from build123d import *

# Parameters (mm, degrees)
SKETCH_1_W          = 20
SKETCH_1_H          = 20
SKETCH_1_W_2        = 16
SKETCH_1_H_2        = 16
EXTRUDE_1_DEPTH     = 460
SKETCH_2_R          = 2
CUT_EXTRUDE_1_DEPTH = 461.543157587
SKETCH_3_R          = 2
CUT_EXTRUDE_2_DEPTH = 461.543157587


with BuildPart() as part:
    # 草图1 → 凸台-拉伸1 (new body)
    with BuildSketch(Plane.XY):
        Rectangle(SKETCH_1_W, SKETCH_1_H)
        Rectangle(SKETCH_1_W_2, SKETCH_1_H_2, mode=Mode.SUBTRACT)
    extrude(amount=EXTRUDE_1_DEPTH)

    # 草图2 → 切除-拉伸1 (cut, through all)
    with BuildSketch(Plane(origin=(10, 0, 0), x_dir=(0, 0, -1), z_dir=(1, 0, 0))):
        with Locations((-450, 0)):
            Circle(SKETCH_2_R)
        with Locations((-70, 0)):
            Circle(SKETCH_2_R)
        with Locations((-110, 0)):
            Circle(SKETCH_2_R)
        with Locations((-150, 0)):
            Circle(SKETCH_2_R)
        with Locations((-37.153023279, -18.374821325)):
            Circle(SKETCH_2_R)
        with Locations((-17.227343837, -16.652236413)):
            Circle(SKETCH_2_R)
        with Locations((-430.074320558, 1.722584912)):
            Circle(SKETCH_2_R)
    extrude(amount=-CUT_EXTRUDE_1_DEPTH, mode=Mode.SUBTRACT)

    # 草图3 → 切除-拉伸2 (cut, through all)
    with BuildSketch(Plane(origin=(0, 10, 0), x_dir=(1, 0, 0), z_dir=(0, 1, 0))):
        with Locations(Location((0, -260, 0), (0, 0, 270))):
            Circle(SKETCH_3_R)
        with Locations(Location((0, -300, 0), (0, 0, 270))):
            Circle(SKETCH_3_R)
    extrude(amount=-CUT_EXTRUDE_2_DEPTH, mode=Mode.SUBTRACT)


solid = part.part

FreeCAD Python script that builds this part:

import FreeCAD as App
import Part
import Sketcher
Q = App.Units.Quantity

doc = App.newDocument("Part")
params = doc.addObject("Spreadsheet::Sheet", "Params")
for row, (alias, value) in enumerate([
    ("sketch1_width", "20 mm"),
    ("sketch1_width2", "16 mm"),
    ("pad1_length", "460 mm"),
    ("sketch2_diameter", "4 mm"),
    ("sketch3_diameter", "4 mm"),
], start=1):
    params.set(f"A{row}", alias)
    params.set(f"B{row}", "=" + value)
    params.setAlias(f"B{row}", alias)

body = doc.addObject("PartDesign::Body", "Body")

sketch1 = body.newObject("Sketcher::SketchObject", "Sketch")
sketch1.AttachmentSupport = (doc.getObject("XY_Plane"), [""])
sketch1.MapMode = "FlatFace"
sketch1.addGeometry([
    Part.LineSegment(App.Vector(-10, 10, 0), App.Vector(-10, -10, 0)),
    Part.LineSegment(App.Vector(-10, -10, 0), App.Vector(10, -10, 0)),
    Part.LineSegment(App.Vector(10, -10, 0), App.Vector(10, 10, 0)),
    Part.LineSegment(App.Vector(10, 10, 0), App.Vector(-10, 10, 0)),
    Part.LineSegment(App.Vector(8, -8, 0), App.Vector(-8, -8, 0)),
    Part.LineSegment(App.Vector(-8, -8, 0), App.Vector(-8, 8, 0)),
    Part.LineSegment(App.Vector(-8, 8, 0), App.Vector(8, 8, 0)),
    Part.LineSegment(App.Vector(8, 8, 0), App.Vector(8, -8, 0)),
], False)
sketch1.addConstraint([
    Sketcher.Constraint("Coincident", 0, 2, 1, 1),
    Sketcher.Constraint("Coincident", 1, 2, 2, 1),
    Sketcher.Constraint("Coincident", 2, 2, 3, 1),
    Sketcher.Constraint("Coincident", 3, 2, 0, 1),
    Sketcher.Constraint("Coincident", 4, 2, 5, 1),
    Sketcher.Constraint("Coincident", 5, 2, 6, 1),
    Sketcher.Constraint("Coincident", 6, 2, 7, 1),
    Sketcher.Constraint("Coincident", 7, 2, 4, 1),
    Sketcher.Constraint("Vertical", 0),
    Sketcher.Constraint("Horizontal", 1),
    Sketcher.Constraint("Vertical", 2),
    Sketcher.Constraint("Horizontal", 3),
    Sketcher.Constraint("Horizontal", 4),
    Sketcher.Constraint("Vertical", 5),
    Sketcher.Constraint("Horizontal", 6),
    Sketcher.Constraint("Vertical", 7),
    Sketcher.Constraint("Symmetric", 0, 2, 2, 2, -1, 1),
    Sketcher.Constraint("Symmetric", 4, 2, 6, 2, -1, 1),
    Sketcher.Constraint("Equal", 3, 0),
    Sketcher.Constraint("Equal", 6, 5),
    Sketcher.Constraint("DistanceX", 1, 1, 1, 2, Q("20 mm")),
    Sketcher.Constraint("DistanceX", 4, 2, 4, 1, Q("16 mm")),
])
sketch1.setExpression("Constraints[20]", "Params.sketch1_width")
sketch1.setExpression("Constraints[21]", "Params.sketch1_width2")
pad1 = body.newObject("PartDesign::Pad", "Pad")
pad1.Profile = sketch1
pad1.setExpression("Length", "Params.pad1_length")

sketch2 = body.newObject("Sketcher::SketchObject", "Sketch001")
sketch2.AttachmentSupport = (doc.getObject("YZ_Plane"), [""])
sketch2.MapMode = "FlatFace"
sketch2.AttachmentOffset = App.Placement(App.Vector(0, 0, 10), App.Rotation())
sketch2.addGeometry([
    Part.Circle(App.Vector(0, 450, 0), App.Vector(0, 0, 1), 2),
    Part.Circle(App.Vector(0, 70, 0), App.Vector(0, 0, 1), 2),
    Part.Circle(App.Vector(0, 110, 0), App.Vector(0, 0, 1), 2),
    Part.Circle(App.Vector(0, 150, 0), App.Vector(0, 0, 1), 2),
    Part.Circle(App.Vector(-18.4, 37.2, 0), App.Vector(0, 0, 1), 2),
    Part.Circle(App.Vector(-16.7, 17.2, 0), App.Vector(0, 0, 1), 2),
    Part.Circle(App.Vector(1.7, 430.1, 0), App.Vector(0, 0, 1), 2),
], False)
sketch2.addConstraint([
    Sketcher.Constraint("Equal", 0, 1),
    Sketcher.Constraint("Equal", 1, 2),
    Sketcher.Constraint("Equal", 2, 3),
    Sketcher.Constraint("Equal", 3, 4),
    Sketcher.Constraint("Equal", 4, 5),
    Sketcher.Constraint("Equal", 5, 6),
    Sketcher.Constraint("PointOnObject", 0, 3, -2),
    Sketcher.Constraint("PointOnObject", 1, 3, -2),
    Sketcher.Constraint("PointOnObject", 2, 3, -2),
    Sketcher.Constraint("PointOnObject", 3, 3, -2),
    Sketcher.Constraint("Diameter", 0, Q("4 mm")),
    Sketcher.Constraint("DistanceY", -1, 1, 0, 3, Q("450 mm")),
    Sketcher.Constraint("DistanceY", -1, 1, 1, 3, Q("70 mm")),
    Sketcher.Constraint("DistanceY", -1, 1, 2, 3, Q("110 mm")),
    Sketcher.Constraint("DistanceY", -1, 1, 3, 3, Q("150 mm")),
    Sketcher.Constraint("DistanceX", 4, 3, -1, 1, Q("18.374821 mm")),
    Sketcher.Constraint("DistanceY", -1, 1, 6, 3, Q("430.074321 mm")),
    Sketcher.Constraint("DistanceY", 5, 3, 4, 3, Q("19.925679 mm")),
    Sketcher.Constraint("DistanceY", -1, 1, 4, 3, Q("37.153023 mm")),
    Sketcher.Constraint("DistanceX", 5, 3, -1, 1, Q("16.652236 mm")),
    Sketcher.Constraint("DistanceX", -1, 1, 6, 3, Q("1.722585 mm")),
])
sketch2.setExpression("Constraints[10]", "Params.sketch2_diameter")
pocket1 = body.newObject("PartDesign::Pocket", "Pocket")
pocket1.Profile = sketch2
pocket1.Type = "ThroughAll"

sketch3 = body.newObject("Sketcher::SketchObject", "Sketch002")
sketch3.AttachmentSupport = (doc.getObject("XZ_Plane"), [""])
sketch3.MapMode = "FlatFace"
sketch3.AttachmentOffset = App.Placement(App.Vector(0, 0, -10), App.Rotation())
sketch3.addGeometry([
    Part.Circle(App.Vector(0, 260, 0), App.Vector(0, 0, 1), 2),
    Part.Circle(App.Vector(0, 300, 0), App.Vector(0, 0, 1), 2),
], False)
sketch3.addConstraint([
    Sketcher.Constraint("Equal", 0, 1),
    Sketcher.Constraint("PointOnObject", 0, 3, -2),
    Sketcher.Constraint("PointOnObject", 1, 3, -2),
    Sketcher.Constraint("Diameter", 0, Q("4 mm")),
    Sketcher.Constraint("DistanceY", -1, 1, 0, 3, Q("260 mm")),
    Sketcher.Constraint("DistanceY", -1, 1, 1, 3, Q("300 mm")),
])
sketch3.setExpression("Constraints[3]", "Params.sketch3_diameter")
pocket2 = body.newObject("PartDesign::Pocket", "Pocket001")
pocket2.Profile = sketch3
pocket2.Type = "ThroughAll"
pocket2.Reversed = True

doc.recompute()
